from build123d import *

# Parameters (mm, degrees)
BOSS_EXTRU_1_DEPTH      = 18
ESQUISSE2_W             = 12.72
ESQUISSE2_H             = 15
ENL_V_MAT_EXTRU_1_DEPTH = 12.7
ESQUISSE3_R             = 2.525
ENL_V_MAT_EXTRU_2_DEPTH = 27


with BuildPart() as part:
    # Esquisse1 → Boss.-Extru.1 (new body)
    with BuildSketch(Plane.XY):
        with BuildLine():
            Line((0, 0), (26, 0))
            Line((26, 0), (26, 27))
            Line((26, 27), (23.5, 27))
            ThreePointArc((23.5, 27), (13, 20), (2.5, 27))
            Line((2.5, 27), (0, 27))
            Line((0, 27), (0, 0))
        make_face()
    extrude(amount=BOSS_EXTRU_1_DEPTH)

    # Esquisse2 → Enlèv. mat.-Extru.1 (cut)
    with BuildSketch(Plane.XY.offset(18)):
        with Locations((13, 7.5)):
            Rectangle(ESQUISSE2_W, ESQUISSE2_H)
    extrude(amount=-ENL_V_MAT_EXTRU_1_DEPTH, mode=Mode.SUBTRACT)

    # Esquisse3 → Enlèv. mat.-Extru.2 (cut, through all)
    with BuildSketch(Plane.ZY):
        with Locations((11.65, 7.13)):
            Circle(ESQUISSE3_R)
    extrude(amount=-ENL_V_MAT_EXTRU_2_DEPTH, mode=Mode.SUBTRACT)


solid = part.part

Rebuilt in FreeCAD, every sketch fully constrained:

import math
import FreeCAD as App
import Part
import Sketcher
from FreeCAD import Vector
Q = App.Units.Quantity


def add_polygon(sketch, points):
    """Adds a closed chain of lines whose ends are joined by coincident constraints."""
    first, n = sketch.GeometryCount, len(points)
    for a, b in zip(points, points[1:] + points[:1]):
        sketch.addGeometry(Part.LineSegment(App.Vector(*a, 0), App.Vector(*b, 0)), False)
    for i in range(n):
        sketch.addConstraint(Sketcher.Constraint("Coincident", first + i, 2, first + (i + 1) % n, 1))

doc = App.newDocument("Part")
params = doc.addObject("Spreadsheet::Sheet", "Params")
for row, (alias, value) in enumerate([
    ("sketch1_width", "26 mm"),
    ("sketch1_height", "27 mm"),
    ("sketch1_width2", "2.5 mm"),
    ("pad1_length", "18 mm"),
    ("sketch2_height", "15 mm"),
    ("sketch2_width", "12.72 mm"),
    ("pocket1_length", "12.7 mm"),
    ("sketch3_diameter", "5.05 mm"),
], start=1):
    params.set(f"A{row}", alias)
    params.set(f"B{row}", "=" + value)
    params.setAlias(f"B{row}", alias)

body = doc.addObject("PartDesign::Body", "Body")

sketch1 = doc.addObject("Sketcher::SketchObject", "Sketch")
body.addObject(sketch1)
sketch1.AttachmentSupport = (doc.XY_Plane, [""])
sketch1.MapMode = "FlatFace"
sketch1.addGeometry(Part.LineSegment(Vector(0, 0, 0), Vector(26, 0, 0)), False)
sketch1.addGeometry(Part.LineSegment(Vector(26, 0, 0), Vector(26, 27, 0)), False)
sketch1.addGeometry(Part.LineSegment(Vector(26, 27, 0), Vector(23.5, 27, 0)), False)
sketch1.addGeometry(Part.ArcOfCircle(Part.Circle(Vector(13, 31.4, 0), Vector(0, 0, 1), 11.4), math.radians(-157), math.radians(-23)), False)
sketch1.addGeometry(Part.LineSegment(Vector(2.5, 27, 0), Vector(0, 27, 0)), False)
sketch1.addGeometry(Part.LineSegment(Vector(0, 27, 0), Vector(0, 0, 0)), False)
sketch1.addConstraint(Sketcher.Constraint("Coincident", 0, 2, 1, 1))
sketch1.addConstraint(Sketcher.Constraint("Coincident", 1, 2, 2, 1))
sketch1.addConstraint(Sketcher.Constraint("Coincident", 2, 2, 3, 2))
sketch1.addConstraint(Sketcher.Constraint("Coincident", 3, 1, 4, 1))
sketch1.addConstraint(Sketcher.Constraint("Coincident", 4, 2, 5, 1))
sketch1.addConstraint(Sketcher.Constraint("Coincident", 5, 2, 0, 1))
sketch1.addConstraint(Sketcher.Constraint("Horizontal", 0))
sketch1.addConstraint(Sketcher.Constraint("Vertical", 1))
sketch1.addConstraint(Sketcher.Constraint("Horizontal", 2))
sketch1.addConstraint(Sketcher.Constraint("Horizontal", 4))
sketch1.addConstraint(Sketcher.Constraint("Vertical", 5))
sketch1.addConstraint(Sketcher.Constraint("Coincident", 5, 2, -1, 1))
sketch1.addConstraint(Sketcher.Constraint("Horizontal", 2, 2, 3, 1))
sketch1.addConstraint(Sketcher.Constraint("Equal", 2, 4))
sketch1.addConstraint(Sketcher.Constraint("DistanceX", 0, 1, 0, 2, Q("26 mm")))
sketch1.addConstraint(Sketcher.Constraint("DistanceY", 1, 1, 1, 2, Q("27 mm")))
sketch1.addConstraint(Sketcher.Constraint("DistanceX", 2, 2, 2, 1, Q("2.5 mm")))
sketch1.addConstraint(Sketcher.Constraint("Radius", 3, Q("11.375 mm")))
sketch1.setExpression("Constraints[14]", "Params.sketch1_width")
sketch1.setExpression("Constraints[15]", "Params.sketch1_height")
sketch1.setExpression("Constraints[16]", "Params.sketch1_width2")
pad1 = doc.addObject("PartDesign::Pad", "Pad")
body.addObject(pad1)
pad1.Profile = sketch1
pad1.setExpression("Length", "Params.pad1_length")

sketch2 = doc.addObject("Sketcher::SketchObject", "Sketch001")
body.addObject(sketch2)
sketch2.AttachmentSupport = (doc.XY_Plane, [""])
sketch2.MapMode = "FlatFace"
sketch2.AttachmentOffset = App.Placement(Vector(0, 0, 18), App.Rotation())
add_polygon(sketch2, [(7, 15), (7, 0), (19, 0), (19, 15)])
sketch2.addConstraint(Sketcher.Constraint("Vertical", 0))
sketch2.addConstraint(Sketcher.Constraint("Horizontal", 1))
sketch2.addConstraint(Sketcher.Constraint("Vertical", 2))
sketch2.addConstraint(Sketcher.Constraint("Horizontal", 3))
sketch2.addConstraint(Sketcher.Constraint("PointOnObject", 0, 2, -1))
sketch2.addConstraint(Sketcher.Constraint("DistanceY", 0, 2, 0, 1, Q("15 mm")))
sketch2.addConstraint(Sketcher.Constraint("DistanceX", 1, 1, 1, 2, Q("12.72 mm")))
sketch2.addConstraint(Sketcher.Constraint("DistanceX", -1, 1, 0, 2, Q("6.64 mm")))
sketch2.setExpression("Constraints[9]", "Params.sketch2_height")
sketch2.setExpression("Constraints[10]", "Params.sketch2_width")
pocket1 = doc.addObject("PartDesign::Pocket", "Pocket")
body.addObject(pocket1)
pocket1.Profile = sketch2
pocket1.setExpression("Length", "Params.pocket1_length")

sketch3 = doc.addObject("Sketcher::SketchObject", "Sketch002")
body.addObject(sketch3)
sketch3.AttachmentSupport = (doc.YZ_Plane, [""])
sketch3.MapMode = "FlatFace"
sketch3.addGeometry(Part.Circle(Vector(7.1, 11.7, 0), Vector(0, 0, 1), 2.5), False)
sketch3.addConstraint(Sketcher.Constraint("Diameter", 0, Q("5.05 mm")))
sketch3.addConstraint(Sketcher.Constraint("DistanceX", -1, 1, 0, 3, Q("7.13 mm")))
sketch3.addConstraint(Sketcher.Constraint("DistanceY", -1, 1, 0, 3, Q("11.65 mm")))
sketch3.setExpression("Constraints[0]", "Params.sketch3_diameter")
pocket2 = doc.addObject("PartDesign::Pocket", "Pocket001")
body.addObject(pocket2)
pocket2.Profile = sketch3
pocket2.Type = "ThroughAll"
pocket2.Reversed = True

doc.recompute()
